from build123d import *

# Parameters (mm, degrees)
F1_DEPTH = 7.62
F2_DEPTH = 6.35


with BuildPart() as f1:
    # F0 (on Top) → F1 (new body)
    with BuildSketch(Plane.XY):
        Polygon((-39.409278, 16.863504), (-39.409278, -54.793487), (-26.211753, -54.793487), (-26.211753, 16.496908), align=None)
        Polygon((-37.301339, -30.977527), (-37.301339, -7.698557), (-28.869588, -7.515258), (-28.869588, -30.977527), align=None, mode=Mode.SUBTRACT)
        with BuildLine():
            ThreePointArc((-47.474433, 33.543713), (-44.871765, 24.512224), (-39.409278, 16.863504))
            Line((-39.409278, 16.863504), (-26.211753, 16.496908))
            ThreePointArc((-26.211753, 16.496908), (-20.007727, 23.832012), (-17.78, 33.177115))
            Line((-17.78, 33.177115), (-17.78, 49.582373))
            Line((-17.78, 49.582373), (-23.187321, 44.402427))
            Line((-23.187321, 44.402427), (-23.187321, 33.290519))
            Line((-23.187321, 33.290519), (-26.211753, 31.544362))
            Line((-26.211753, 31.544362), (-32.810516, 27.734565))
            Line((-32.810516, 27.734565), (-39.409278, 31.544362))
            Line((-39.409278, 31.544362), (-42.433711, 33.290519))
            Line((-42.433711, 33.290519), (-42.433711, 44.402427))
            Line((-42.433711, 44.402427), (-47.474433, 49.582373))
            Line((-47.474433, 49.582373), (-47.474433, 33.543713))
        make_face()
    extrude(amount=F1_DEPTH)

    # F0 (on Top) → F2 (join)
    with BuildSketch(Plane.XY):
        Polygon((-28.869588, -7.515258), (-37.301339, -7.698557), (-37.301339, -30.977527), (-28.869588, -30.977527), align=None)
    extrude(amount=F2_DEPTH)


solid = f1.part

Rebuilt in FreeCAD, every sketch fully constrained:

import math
import FreeCAD as App
import Part
import Sketcher

V = App.Vector
Q = App.Units.Quantity

doc = App.newDocument("Part")
body = doc.addObject("PartDesign::Body", "Body")

# Sketch on XY plane
sketch1 = doc.addObject("Sketcher::SketchObject", "Sketch")
body.addObject(sketch1)
sketch1.AttachmentSupport = (doc.XY_Plane, [""])
sketch1.MapMode = "FlatFace"
sketch1.addGeometry([
    Part.LineSegment(V(-39.409278, 16.863504, 0), V(-39.409278, -54.793487, 0)),  # 0
    Part.LineSegment(V(-39.409278, -54.793487, 0), V(-26.211753, -54.793487, 0)),  # 1
    Part.LineSegment(V(-26.211753, -54.793487, 0), V(-26.211753, 16.496908, 0)),  # 2
    Part.ArcOfCircle(Part.Circle(V(-38.49478, 33.177117, 0), V(0, 0, 1), 20.71478), math.radians(-53.632689), math.radians(-0.000005)),  # 3
    Part.LineSegment(V(-17.78, 33.177115, 0), V(-17.78, 49.582373, 0)),  # 4
    Part.LineSegment(V(-17.78, 49.582373, 0), V(-23.187321, 44.402427, 0)),  # 5
    Part.LineSegment(V(-23.187321, 44.402427, 0), V(-23.187321, 33.290519, 0)),  # 6
    Part.LineSegment(V(-23.187321, 33.290519, 0), V(-26.211753, 31.544362, 0)),  # 7
    Part.LineSegment(V(-26.211753, 31.544362, 0), V(-32.810516, 27.734565, 0)),  # 8
    Part.LineSegment(V(-32.810516, 27.734565, 0), V(-39.409278, 31.544362, 0)),  # 9
    Part.LineSegment(V(-39.409278, 31.544362, 0), V(-42.433711, 33.290519, 0)),  # 10
    Part.LineSegment(V(-42.433711, 33.290519, 0), V(-42.433711, 44.402427, 0)),  # 11
    Part.LineSegment(V(-42.433711, 44.402427, 0), V(-47.474433, 49.582373, 0)),  # 12
    Part.LineSegment(V(-47.474433, 49.582373, 0), V(-47.474433, 33.543713, 0)),  # 13
    Part.ArcOfCircle(Part.Circle(V(-19.83452, 36.618143, 0), V(0, 0, 1), 27.810374), math.radians(-173.652993), math.radians(-134.737948)),  # 14
    Part.LineSegment(V(-28.869588, -30.977527, 0), V(-37.301339, -30.977527, 0)),  # 15
    Part.LineSegment(V(-37.301339, -30.977527, 0), V(-37.301339, -7.698557, 0)),  # 16
    Part.LineSegment(V(-37.301339, -7.698557, 0), V(-28.869588, -7.515258, 0)),  # 17
    Part.LineSegment(V(-28.869588, -7.515258, 0), V(-28.869588, -30.977527, 0)),  # 18
], False)
sketch1.addConstraint([
    Sketcher.Constraint("Coincident", 0, 2, 1, 1),
    Sketcher.Constraint("Coincident", 1, 2, 2, 1),
    Sketcher.Constraint("Coincident", 2, 2, 3, 1),
    Sketcher.Constraint("Tangent", 3, 2, 4, 1),
    Sketcher.Constraint("Coincident", 4, 2, 5, 1),
    Sketcher.Constraint("Coincident", 5, 2, 6, 1),
    Sketcher.Constraint("Coincident", 6, 2, 7, 1),
    Sketcher.Constraint("Coincident", 7, 2, 8, 1),
    Sketcher.Constraint("Coincident", 8, 2, 9, 1),
    Sketcher.Constraint("Coincident", 9, 2, 10, 1),
    Sketcher.Constraint("Coincident", 10, 2, 11, 1),
    Sketcher.Constraint("Coincident", 11, 2, 12, 1),
    Sketcher.Constraint("Coincident", 12, 2, 13, 1),
    Sketcher.Constraint("Coincident", 13, 2, 14, 1),
    Sketcher.Constraint("Coincident", 14, 2, 0, 1),
    Sketcher.Constraint("Coincident", 15, 2, 16, 1),
    Sketcher.Constraint("Coincident", 16, 2, 17, 1),
    Sketcher.Constraint("Coincident", 17, 2, 18, 1),
    Sketcher.Constraint("Coincident", 18, 2, 15, 1),
    Sketcher.Constraint("Vertical", 0),
    Sketcher.Constraint("Horizontal", 1),
    Sketcher.Constraint("Vertical", 2),
    Sketcher.Constraint("Vertical", 4),
    Sketcher.Constraint("Vertical", 6),
    Sketcher.Constraint("Vertical", 11),
    Sketcher.Constraint("Vertical", 13),
    Sketcher.Constraint("Horizontal", 15),
    Sketcher.Constraint("Vertical", 16),
    Sketcher.Constraint("Vertical", 18),
    Sketcher.Constraint("Parallel", 7, 8),
    Sketcher.Constraint("Parallel", 9, 10),
    Sketcher.Constraint("Horizontal", 7, 2, 9, 2),
    Sketcher.Constraint("Horizontal", 6, 2, 10, 2),
    Sketcher.Constraint("Horizontal", 5, 2, 11, 2),
    Sketcher.Constraint("Horizontal", 4, 2, 12, 2),
    Sketcher.Constraint("Vertical", 2, 2, 7, 2),
    Sketcher.Constraint("Vertical", 0, 2, 9, 2),
    Sketcher.Constraint("Equal", 8, 9),
    Sketcher.Constraint("Angle", 7, Q("-149.999995 deg")),
    Sketcher.Constraint("DistanceX", 3, 2, -1, 1, Q("0.7 in")),
    Sketcher.Constraint("Radius", 3, 20.71478),
    Sketcher.Constraint("DistanceX", 5, 2, 14, 3, Q("0.132 in")),
    Sketcher.Constraint("Radius", 14, 27.810374),
    Sketcher.Constraint("DistanceX", 15, 2, 15, 1, 8.431751),
    Sketcher.Constraint("DistanceY", 0, 2, 0, 1, 71.656991),
    Sketcher.Constraint("DistanceY", 13, 2, 13, 1, 16.03866),
    Sketcher.Constraint("DistanceY", 16, 1, 16, 2, 23.27897),
    Sketcher.Constraint("DistanceY", 18, 2, 18, 1, 23.462269),
    Sketcher.Constraint("DistanceY", 1, 2, 3, 2, 87.970602),
    Sketcher.Constraint("DistanceX", 1, 1, 1, 2, 13.197525),
    Sketcher.Constraint("DistanceY", 2, 1, 2, 2, 71.290395),
    Sketcher.Constraint("DistanceY", 4, 1, 4, 2, 16.405258),
    Sketcher.Constraint("DistanceY", 6, 2, 6, 1, 11.111908),
    Sketcher.Constraint("DistanceX", 14, 3, -1, 1, 19.83452),
    Sketcher.Constraint("DistanceY", -1, 1, 2, 2, 16.496908),
    Sketcher.Constraint("DistanceY", -1, 1, 6, 2, 33.290519),
    Sketcher.Constraint("DistanceX", 15, 2, -1, 1, 37.301339),
    Sketcher.Constraint("DistanceY", 17, 2, -1, 1, 7.515258),
])
pad1 = doc.addObject("PartDesign::Pad", "Pad")
body.addObject(pad1)
pad1.Profile = sketch1
pad1.Length = Q("0.3 in")

# Sketch on XY plane
sketch2 = doc.addObject("Sketcher::SketchObject", "Sketch001")
body.addObject(sketch2)
sketch2.AttachmentSupport = (doc.XY_Plane, [""])
sketch2.MapMode = "FlatFace"
sketch2.addGeometry([
    Part.LineSegment(V(-28.869588, -7.515258, 0), V(-37.301339, -7.698557, 0)),
    Part.LineSegment(V(-37.301339, -7.698557, 0), V(-37.301339, -30.977527, 0)),
    Part.LineSegment(V(-37.301339, -30.977527, 0), V(-28.869588, -30.977527, 0)),
    Part.LineSegment(V(-28.869588, -30.977527, 0), V(-28.869588, -7.515258, 0)),
], False)
sketch2.addConstraint([
    Sketcher.Constraint("Coincident", 0, 2, 1, 1),
    Sketcher.Constraint("Coincident", 1, 2, 2, 1),
    Sketcher.Constraint("Coincident", 2, 2, 3, 1),
    Sketcher.Constraint("Coincident", 3, 2, 0, 1),
    Sketcher.Constraint("Vertical", 1),
    Sketcher.Constraint("Horizontal", 2),
    Sketcher.Constraint("Vertical", 3),
    Sketcher.Constraint("DistanceX", 2, 1, 2, 2, 8.431751),
    Sketcher.Constraint("DistanceY", 1, 2, 1, 1, 23.27897),
    Sketcher.Constraint("DistanceY", 3, 1, 3, 2, 23.462269),
    Sketcher.Constraint("DistanceX", 0, 2, -1, 1, 37.301339),
    Sketcher.Constraint("DistanceY", 3, 2, -1, 1, 7.515258),
])
pad2 = doc.addObject("PartDesign::Pad", "Pad001")
body.addObject(pad2)
pad2.Profile = sketch2
pad2.Length = Q("0.25 in")

doc.recompute()
